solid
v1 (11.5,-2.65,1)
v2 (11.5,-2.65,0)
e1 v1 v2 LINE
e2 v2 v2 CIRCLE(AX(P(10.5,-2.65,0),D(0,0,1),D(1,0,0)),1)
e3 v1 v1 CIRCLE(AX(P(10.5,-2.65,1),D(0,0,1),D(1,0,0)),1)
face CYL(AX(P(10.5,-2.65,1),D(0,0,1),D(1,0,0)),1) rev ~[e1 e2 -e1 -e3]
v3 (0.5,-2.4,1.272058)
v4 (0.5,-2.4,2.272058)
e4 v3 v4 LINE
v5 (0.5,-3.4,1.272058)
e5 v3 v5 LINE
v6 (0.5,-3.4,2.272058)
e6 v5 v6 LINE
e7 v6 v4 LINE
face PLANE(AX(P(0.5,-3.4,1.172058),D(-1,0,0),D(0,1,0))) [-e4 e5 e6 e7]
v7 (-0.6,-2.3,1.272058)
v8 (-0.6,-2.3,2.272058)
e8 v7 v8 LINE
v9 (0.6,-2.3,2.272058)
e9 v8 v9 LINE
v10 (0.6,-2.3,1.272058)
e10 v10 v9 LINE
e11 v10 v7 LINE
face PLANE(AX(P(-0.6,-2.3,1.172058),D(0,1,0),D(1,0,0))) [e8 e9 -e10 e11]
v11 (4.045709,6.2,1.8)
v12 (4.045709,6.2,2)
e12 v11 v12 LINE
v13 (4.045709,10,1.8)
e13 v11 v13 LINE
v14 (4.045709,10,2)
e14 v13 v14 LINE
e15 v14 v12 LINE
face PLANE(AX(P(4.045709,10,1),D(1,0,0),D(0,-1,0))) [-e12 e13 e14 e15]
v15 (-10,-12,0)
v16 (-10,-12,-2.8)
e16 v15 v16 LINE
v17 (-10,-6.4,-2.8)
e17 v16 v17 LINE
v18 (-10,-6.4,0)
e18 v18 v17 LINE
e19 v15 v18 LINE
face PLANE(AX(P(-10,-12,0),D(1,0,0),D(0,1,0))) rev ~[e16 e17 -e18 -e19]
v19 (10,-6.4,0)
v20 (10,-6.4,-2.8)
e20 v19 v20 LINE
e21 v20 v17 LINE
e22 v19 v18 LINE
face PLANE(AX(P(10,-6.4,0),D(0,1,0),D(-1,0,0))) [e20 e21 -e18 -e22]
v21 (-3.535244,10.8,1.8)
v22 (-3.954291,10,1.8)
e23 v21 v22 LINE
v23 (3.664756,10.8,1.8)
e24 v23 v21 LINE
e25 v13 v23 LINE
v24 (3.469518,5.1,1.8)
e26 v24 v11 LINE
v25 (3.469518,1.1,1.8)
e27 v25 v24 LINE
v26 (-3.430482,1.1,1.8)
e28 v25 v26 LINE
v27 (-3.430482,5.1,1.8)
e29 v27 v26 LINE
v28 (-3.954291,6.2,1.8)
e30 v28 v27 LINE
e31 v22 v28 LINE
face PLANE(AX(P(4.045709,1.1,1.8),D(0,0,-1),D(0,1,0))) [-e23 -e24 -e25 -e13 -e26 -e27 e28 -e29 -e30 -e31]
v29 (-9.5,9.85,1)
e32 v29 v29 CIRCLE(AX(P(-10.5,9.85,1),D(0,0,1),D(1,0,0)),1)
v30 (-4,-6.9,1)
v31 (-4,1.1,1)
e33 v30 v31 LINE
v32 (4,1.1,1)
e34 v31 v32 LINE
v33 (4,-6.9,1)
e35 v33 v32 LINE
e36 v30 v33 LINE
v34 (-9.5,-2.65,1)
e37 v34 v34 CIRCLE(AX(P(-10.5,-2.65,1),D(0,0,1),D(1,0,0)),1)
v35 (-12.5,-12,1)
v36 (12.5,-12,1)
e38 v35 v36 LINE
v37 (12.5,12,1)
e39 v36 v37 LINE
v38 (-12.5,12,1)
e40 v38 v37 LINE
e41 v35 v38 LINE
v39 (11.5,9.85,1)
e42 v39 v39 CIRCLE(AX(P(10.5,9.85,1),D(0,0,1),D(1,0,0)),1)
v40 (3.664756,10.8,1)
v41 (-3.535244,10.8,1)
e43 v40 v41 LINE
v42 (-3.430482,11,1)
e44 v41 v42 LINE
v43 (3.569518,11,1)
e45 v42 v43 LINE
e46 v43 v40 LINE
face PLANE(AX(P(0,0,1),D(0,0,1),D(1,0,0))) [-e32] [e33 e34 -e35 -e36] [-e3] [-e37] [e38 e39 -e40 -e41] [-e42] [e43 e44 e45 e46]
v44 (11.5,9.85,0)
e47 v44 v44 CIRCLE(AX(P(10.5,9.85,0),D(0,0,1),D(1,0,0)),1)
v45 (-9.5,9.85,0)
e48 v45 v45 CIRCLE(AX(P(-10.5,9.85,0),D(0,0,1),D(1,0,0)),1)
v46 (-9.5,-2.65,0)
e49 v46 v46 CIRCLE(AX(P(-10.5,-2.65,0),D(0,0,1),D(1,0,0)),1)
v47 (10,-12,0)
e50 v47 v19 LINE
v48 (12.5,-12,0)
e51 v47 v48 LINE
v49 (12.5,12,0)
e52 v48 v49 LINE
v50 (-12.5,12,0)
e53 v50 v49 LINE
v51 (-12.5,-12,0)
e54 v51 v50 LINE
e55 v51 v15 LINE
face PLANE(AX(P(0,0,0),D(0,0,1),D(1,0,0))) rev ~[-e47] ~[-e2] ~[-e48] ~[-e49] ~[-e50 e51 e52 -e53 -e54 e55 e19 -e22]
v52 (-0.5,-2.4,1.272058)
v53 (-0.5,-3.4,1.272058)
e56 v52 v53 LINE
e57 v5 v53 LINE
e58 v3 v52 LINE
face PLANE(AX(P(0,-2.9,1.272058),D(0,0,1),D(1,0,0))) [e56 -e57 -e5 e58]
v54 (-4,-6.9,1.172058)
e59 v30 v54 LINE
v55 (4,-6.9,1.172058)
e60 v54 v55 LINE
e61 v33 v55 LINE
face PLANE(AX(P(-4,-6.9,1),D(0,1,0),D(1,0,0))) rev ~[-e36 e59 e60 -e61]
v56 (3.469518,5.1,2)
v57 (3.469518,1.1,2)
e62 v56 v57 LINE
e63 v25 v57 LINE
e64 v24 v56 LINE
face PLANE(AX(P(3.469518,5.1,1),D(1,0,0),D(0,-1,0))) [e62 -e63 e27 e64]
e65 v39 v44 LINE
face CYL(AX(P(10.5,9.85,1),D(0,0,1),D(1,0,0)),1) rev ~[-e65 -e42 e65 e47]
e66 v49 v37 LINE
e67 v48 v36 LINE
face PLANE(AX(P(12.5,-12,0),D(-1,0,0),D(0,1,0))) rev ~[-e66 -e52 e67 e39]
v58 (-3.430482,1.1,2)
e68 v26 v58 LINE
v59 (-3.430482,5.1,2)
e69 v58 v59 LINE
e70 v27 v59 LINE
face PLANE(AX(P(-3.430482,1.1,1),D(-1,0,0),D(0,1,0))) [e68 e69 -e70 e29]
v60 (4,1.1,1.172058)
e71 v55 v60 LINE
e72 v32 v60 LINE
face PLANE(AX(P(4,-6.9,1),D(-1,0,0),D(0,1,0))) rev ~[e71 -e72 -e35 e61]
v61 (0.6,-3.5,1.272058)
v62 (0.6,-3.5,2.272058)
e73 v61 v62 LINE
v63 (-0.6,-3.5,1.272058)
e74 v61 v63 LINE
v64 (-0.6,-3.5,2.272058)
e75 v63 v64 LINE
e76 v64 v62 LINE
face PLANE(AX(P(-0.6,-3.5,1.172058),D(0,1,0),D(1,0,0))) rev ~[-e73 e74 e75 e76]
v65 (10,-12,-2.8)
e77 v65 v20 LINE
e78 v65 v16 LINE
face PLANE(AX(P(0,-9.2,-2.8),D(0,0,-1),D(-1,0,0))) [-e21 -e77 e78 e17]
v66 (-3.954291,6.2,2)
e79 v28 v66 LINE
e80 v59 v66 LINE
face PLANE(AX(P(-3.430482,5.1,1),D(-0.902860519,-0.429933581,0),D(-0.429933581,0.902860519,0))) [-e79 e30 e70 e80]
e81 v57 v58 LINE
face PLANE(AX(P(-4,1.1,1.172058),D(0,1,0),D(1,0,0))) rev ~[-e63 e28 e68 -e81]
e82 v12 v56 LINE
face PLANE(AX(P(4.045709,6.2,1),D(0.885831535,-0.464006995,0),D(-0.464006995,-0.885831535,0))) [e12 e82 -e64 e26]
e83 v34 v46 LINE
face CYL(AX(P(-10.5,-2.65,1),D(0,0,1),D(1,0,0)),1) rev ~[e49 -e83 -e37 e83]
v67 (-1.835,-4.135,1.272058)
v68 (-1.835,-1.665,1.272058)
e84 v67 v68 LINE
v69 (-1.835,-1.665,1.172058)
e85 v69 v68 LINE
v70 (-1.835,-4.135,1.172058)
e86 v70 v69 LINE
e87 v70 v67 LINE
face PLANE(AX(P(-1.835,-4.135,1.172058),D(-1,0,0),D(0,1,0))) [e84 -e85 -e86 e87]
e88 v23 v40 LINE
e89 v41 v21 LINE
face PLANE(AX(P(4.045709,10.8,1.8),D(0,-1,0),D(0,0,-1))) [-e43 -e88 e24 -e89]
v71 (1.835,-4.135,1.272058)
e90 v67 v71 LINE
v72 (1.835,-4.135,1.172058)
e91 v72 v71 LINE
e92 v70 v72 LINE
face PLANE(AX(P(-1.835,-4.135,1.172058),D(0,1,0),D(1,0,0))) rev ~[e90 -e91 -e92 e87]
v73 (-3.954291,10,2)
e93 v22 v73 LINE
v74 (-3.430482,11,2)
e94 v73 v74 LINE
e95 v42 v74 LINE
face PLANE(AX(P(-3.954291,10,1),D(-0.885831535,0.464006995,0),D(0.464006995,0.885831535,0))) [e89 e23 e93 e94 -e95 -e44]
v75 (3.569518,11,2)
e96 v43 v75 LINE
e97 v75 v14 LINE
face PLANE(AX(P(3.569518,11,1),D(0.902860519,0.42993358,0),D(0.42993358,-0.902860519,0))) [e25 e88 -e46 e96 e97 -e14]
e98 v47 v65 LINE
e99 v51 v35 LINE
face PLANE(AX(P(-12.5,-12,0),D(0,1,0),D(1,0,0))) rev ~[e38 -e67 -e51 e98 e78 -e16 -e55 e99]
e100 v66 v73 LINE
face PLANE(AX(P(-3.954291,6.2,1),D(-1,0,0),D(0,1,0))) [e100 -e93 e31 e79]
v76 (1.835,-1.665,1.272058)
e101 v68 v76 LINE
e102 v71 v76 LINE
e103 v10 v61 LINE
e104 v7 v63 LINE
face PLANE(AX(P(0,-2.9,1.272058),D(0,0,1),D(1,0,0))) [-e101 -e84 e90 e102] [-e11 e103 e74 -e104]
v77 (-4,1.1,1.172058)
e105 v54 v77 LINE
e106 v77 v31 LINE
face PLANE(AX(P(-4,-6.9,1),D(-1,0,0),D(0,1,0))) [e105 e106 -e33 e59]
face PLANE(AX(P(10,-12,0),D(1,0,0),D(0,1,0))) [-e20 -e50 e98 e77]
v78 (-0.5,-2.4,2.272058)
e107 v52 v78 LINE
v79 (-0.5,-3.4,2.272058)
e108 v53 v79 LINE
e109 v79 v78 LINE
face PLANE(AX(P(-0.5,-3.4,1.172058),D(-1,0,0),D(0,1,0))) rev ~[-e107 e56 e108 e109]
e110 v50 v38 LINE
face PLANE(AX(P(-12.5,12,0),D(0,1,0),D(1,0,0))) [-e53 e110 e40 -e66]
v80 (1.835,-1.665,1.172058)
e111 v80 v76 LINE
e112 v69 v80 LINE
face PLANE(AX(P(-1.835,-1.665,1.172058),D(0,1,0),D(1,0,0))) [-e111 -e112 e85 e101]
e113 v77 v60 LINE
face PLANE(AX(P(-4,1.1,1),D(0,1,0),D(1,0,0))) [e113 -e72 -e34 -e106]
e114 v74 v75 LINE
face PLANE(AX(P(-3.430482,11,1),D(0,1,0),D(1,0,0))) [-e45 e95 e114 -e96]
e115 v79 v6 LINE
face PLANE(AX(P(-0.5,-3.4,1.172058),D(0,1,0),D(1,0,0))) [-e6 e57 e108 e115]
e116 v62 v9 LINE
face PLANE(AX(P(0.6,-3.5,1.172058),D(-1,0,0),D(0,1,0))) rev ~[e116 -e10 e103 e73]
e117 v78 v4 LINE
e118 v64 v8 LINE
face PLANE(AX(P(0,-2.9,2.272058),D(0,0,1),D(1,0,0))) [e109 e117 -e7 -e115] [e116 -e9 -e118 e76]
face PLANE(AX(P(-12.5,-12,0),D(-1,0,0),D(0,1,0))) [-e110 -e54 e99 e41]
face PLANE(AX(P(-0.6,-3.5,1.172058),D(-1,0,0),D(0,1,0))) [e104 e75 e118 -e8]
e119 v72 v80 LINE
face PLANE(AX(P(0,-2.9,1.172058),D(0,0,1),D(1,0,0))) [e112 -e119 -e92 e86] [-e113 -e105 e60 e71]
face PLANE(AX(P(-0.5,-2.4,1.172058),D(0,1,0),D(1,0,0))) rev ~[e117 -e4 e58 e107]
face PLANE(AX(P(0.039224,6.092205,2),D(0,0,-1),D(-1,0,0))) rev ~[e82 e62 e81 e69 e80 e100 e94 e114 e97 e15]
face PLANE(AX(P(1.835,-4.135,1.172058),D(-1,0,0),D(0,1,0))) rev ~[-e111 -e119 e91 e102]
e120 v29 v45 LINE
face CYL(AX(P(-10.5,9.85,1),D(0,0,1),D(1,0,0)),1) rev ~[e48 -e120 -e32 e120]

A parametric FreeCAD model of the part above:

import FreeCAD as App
import Part
import Sketcher
Q = App.Units.Quantity


def add_polygon(sketch, points):
    """Adds a closed chain of lines whose ends are joined by coincident constraints."""
    first, n = sketch.GeometryCount, len(points)
    for a, b in zip(points, points[1:] + points[:1]):
        sketch.addGeometry(Part.LineSegment(App.Vector(*a, 0), App.Vector(*b, 0)), False)
    for i in range(n):
        sketch.addConstraint(Sketcher.Constraint("Coincident", first + i, 2, first + (i + 1) % n, 1))

doc = App.newDocument("Part")
body = doc.addObject("PartDesign::Body", "Body")

sketch1 = body.newObject("Sketcher::SketchObject", "Sketch")
sketch1.AttachmentSupport = (doc.getObject("XY_Plane"), [""])
sketch1.MapMode = "FlatFace"
add_polygon(sketch1, [(-12, 12), (-12, -12), (12, -12), (12, 12)])
sketch1.addConstraint(Sketcher.Constraint("Vertical", 0))
sketch1.addConstraint(Sketcher.Constraint("Horizontal", 1))
sketch1.addConstraint(Sketcher.Constraint("Vertical", 2))
sketch1.addConstraint(Sketcher.Constraint("Horizontal", 3))
sketch1.addConstraint(Sketcher.Constraint("Symmetric", 0, 2, 2, 2, -1, 1))
sketch1.addConstraint(Sketcher.Constraint("DistanceX", 1, 1, 1, 2, Q("25 mm")))
sketch1.addConstraint(Sketcher.Constraint("DistanceY", 0, 2, 0, 1, Q("24 mm")))
pad1 = body.newObject("PartDesign::Pad", "Pad")
pad1.Profile = sketch1
pad1.Length = 1

sketch2 = body.newObject("Sketcher::SketchObject", "Sketch001")
sketch2.AttachmentSupport = (doc.getObject("XY_Plane"), [""])
sketch2.MapMode = "FlatFace"
sketch2.AttachmentOffset = App.Placement(App.Vector(0, 0, 1), App.Rotation())
sketch2.addGeometry(Part.Circle(App.Vector(-10.5, 9.8, 0), App.Vector(0, 0, 1), 1), False)
sketch2.addGeometry(Part.Circle(App.Vector(10.5, 9.8, 0), App.Vector(0, 0, 1), 1), False)
sketch2.addGeometry(Part.Circle(App.Vector(10.5, -2.6, 0), App.Vector(0, 0, 1), 1), False)
sketch2.addGeometry(Part.Circle(App.Vector(-10.5, -2.6, 0), App.Vector(0, 0, 1), 1), False)
sketch2.addConstraint(Sketcher.Constraint("Equal", 0, 1))
sketch2.addConstraint(Sketcher.Constraint("Equal", 1, 2))
sketch2.addConstraint(Sketcher.Constraint("Equal", 2, 3))
sketch2.addConstraint(Sketcher.Constraint("Symmetric", 0, 3, 1, 3, -2))
sketch2.addConstraint(Sketcher.Constraint("Symmetric", 2, 3, 3, 3, -2))
sketch2.addConstraint(Sketcher.Constraint("Vertical", 1, 3, 2, 3))
sketch2.addConstraint(Sketcher.Constraint("Diameter", 0, Q("2 mm")))
sketch2.addConstraint(Sketcher.Constraint("DistanceX", 0, 3, 1, 3, Q("21 mm")))
sketch2.addConstraint(Sketcher.Constraint("DistanceY", 2, 3, 1, 3, Q("12.5 mm")))
sketch2.addConstraint(Sketcher.Constraint("DistanceY", -1, 1, 0, 3, Q("9.85 mm")))
pocket1 = body.newObject("PartDesign::Pocket", "Pocket")
pocket1.Profile = sketch2
pocket1.Length = 1

sketch3 = body.newObject("Sketcher::SketchObject", "Sketch002")
sketch3.AttachmentSupport = (doc.getObject("XY_Plane"), [""])
sketch3.MapMode = "FlatFace"
sketch3.AttachmentOffset = App.Placement(App.Vector(0, 0, 1), App.Rotation())
add_polygon(sketch3, [(-4, 1), (-4, -7), (4, -7), (4, 1)])
sketch3.addConstraint(Sketcher.Constraint("Vertical", 0))
sketch3.addConstraint(Sketcher.Constraint("Horizontal", 1))
sketch3.addConstraint(Sketcher.Constraint("Vertical", 2))
sketch3.addConstraint(Sketcher.Constraint("Horizontal", 3))
sketch3.addConstraint(Sketcher.Constraint("Equal", 3, 0))
sketch3.addConstraint(Sketcher.Constraint("DistanceX", 1, 1, 1, 2, Q("8 mm")))
sketch3.addConstraint(Sketcher.Constraint("DistanceX", 0, 2, -1, 1, Q("4 mm")))
sketch3.addConstraint(Sketcher.Constraint("DistanceY", 0, 2, -1, 1, Q("6.9 mm")))
pad2 = body.newObject("PartDesign::Pad", "Pad001")
pad2.Profile = sketch3
pad2.Length = 5.2

sketch4 = body.newObject("Sketcher::SketchObject", "Sketch003")
sketch4.AttachmentSupport = (doc.getObject("XY_Plane"), [""])
sketch4.MapMode = "FlatFace"
sketch4.AttachmentOffset = App.Placement(App.Vector(0, 0, 6.2), App.Rotation())
add_polygon(sketch4, [(-4, 1.1), (-4, -6.9), (4, -6.9), (4, 1.1)])
sketch4.addGeometry(Part.Circle(App.Vector(0, -2.9, 0), App.Vector(0, 0, 1), 3.8), False)
sketch4.addConstraint(Sketcher.Constraint("Vertical", 0))
sketch4.addConstraint(Sketcher.Constraint("Horizontal", 1))
sketch4.addConstraint(Sketcher.Constraint("Vertical", 2))
sketch4.addConstraint(Sketcher.Constraint("Horizontal", 3))
sketch4.addConstraint(Sketcher.Constraint("PointOnObject", 4, 3, -2))
sketch4.addConstraint(Sketcher.Constraint("Equal", 3, 0))
sketch4.addConstraint(Sketcher.Constraint("Diameter", 4, Q("7.5 mm")))
sketch4.addConstraint(Sketcher.Constraint("DistanceX", 1, 1, 1, 2, Q("8 mm")))
sketch4.addConstraint(Sketcher.Constraint("DistanceX", 0, 2, -1, 1, Q("4 mm")))
sketch4.addConstraint(Sketcher.Constraint("DistanceY", 0, 2, 4, 3, Q("4 mm")))
sketch4.addConstraint(Sketcher.Constraint("DistanceY", 4, 3, -1, 1, Q("2.9 mm")))
pocket2 = body.newObject("PartDesign::Pocket", "Pocket001")
pocket2.Profile = sketch4
pocket2.Length = 3.2

sketch5 = body.newObject("Sketcher::SketchObject", "Sketch004")
sketch5.AttachmentSupport = (doc.getObject("XY_Plane"), [""])
sketch5.MapMode = "FlatFace"
sketch5.AttachmentOffset = App.Placement(App.Vector(0, 0, 6.2), App.Rotation())
sketch5.addGeometry(Part.Circle(App.Vector(0, -2.9, 0), App.Vector(0, 0, 1), 3.8), False)
sketch5.addGeometry(Part.Circle(App.Vector(0, -2.9, 0), App.Vector(0, 0, 1), 3), False)
sketch5.addConstraint(Sketcher.Constraint("Coincident", 1, 3, 0, 3))
sketch5.addConstraint(Sketcher.Constraint("PointOnObject", 0, 3, -2))
sketch5.addConstraint(Sketcher.Constraint("Diameter", 1, Q("6 mm")))
sketch5.addConstraint(Sketcher.Constraint("Diameter", 0, Q("7.5 mm")))
sketch5.addConstraint(Sketcher.Constraint("DistanceY", 0, 3, -1, 1, Q("2.9 mm")))
pocket3 = body.newObject("PartDesign::Pocket", "Pocket002")
pocket3.Profile = sketch5
pocket3.Length = 1.2

sketch6 = body.newObject("Sketcher::SketchObject", "Sketch005")
sketch6.AttachmentSupport = (doc.getObject("XY_Plane"), [""])
sketch6.MapMode = "FlatFace"
sketch6.AttachmentOffset = App.Placement(App.Vector(0, 0, 1), App.Rotation())
add_polygon(sketch6, [(-3.4, 5.1), (-3.4, 1.1), (3.5, 1.1), (3.5, 5.1), (4, 6.2), (4, 10), (3.6, 11), (-3.4, 11), (-4, 10), (-4, 6.2)])
sketch6.addConstraint(Sketcher.Constraint("Vertical", 0))
sketch6.addConstraint(Sketcher.Constraint("Horizontal", 1))
sketch6.addConstraint(Sketcher.Constraint("Vertical", 2))
sketch6.addConstraint(Sketcher.Constraint("Vertical", 4))
sketch6.addConstraint(Sketcher.Constraint("Horizontal", 6))
sketch6.addConstraint(Sketcher.Constraint("Vertical", 8))
sketch6.addConstraint(Sketcher.Constraint("Parallel", 3, 7))
sketch6.addConstraint(Sketcher.Constraint("Parallel", 5, 9))
sketch6.addConstraint(Sketcher.Constraint("Horizontal", 4, 2, 7, 2))
sketch6.addConstraint(Sketcher.Constraint("Horizontal", 3, 2, 8, 2))
sketch6.addConstraint(Sketcher.Constraint("Horizontal", 2, 2, 9, 2))
sketch6.addConstraint(Sketcher.Constraint("Vertical", 0, 2, 6, 2))
sketch6.addConstraint(Sketcher.Constraint("DistanceX", 6, 2, 6, 1, Q("7 mm")))
sketch6.addConstraint(Sketcher.Constraint("DistanceY", 0, 2, 0, 1, Q("4 mm")))
sketch6.addConstraint(Sketcher.Constraint("DistanceX", 1, 1, 1, 2, Q("6.9 mm")))
sketch6.addConstraint(Sketcher.Constraint("DistanceY", 4, 1, 4, 2, Q("3.8 mm")))
sketch6.addConstraint(Sketcher.Constraint("DistanceY", -1, 1, 4, 2, Q("10 mm")))
sketch6.addConstraint(Sketcher.Constraint("DistanceY", -1, 1, 5, 2, Q("11 mm")))
sketch6.addConstraint(Sketcher.Constraint("DistanceX", 7, 2, 4, 2, Q("8 mm")))
sketch6.addConstraint(Sketcher.Constraint("DistanceX", 0, 2, -1, 1, Q("3.430482 mm")))
pad3 = body.newObject("PartDesign::Pad", "Pad002")
pad3.Profile = sketch6
pad3.Length = 1

sketch7 = body.newObject("Sketcher::SketchObject", "Sketch006")
sketch7.AttachmentSupport = (doc.getObject("YZ_Plane"), [""])
sketch7.MapMode = "FlatFace"
sketch7.AttachmentOffset = App.Placement(App.Vector(0, 0, 4.045709), App.Rotation())
add_polygon(sketch7, [(10.8, 1.8), (1.1, 1.8), (1.1, 1), (10.8, 1)])
sketch7.addConstraint(Sketcher.Constraint("Horizontal", 0))
sketch7.addConstraint(Sketcher.Constraint("Vertical", 1))
sketch7.addConstraint(Sketcher.Constraint("Horizontal", 2))
sketch7.addConstraint(Sketcher.Constraint("Vertical", 3))
sketch7.addConstraint(Sketcher.Constraint("DistanceX", 0, 2, 0, 1, Q("9.7 mm")))
sketch7.addConstraint(Sketcher.Constraint("DistanceY", 1, 2, 1, 1, Q("0.8 mm")))
sketch7.addConstraint(Sketcher.Constraint("DistanceY", -1, 1, 1, 2, Q("1 mm")))
sketch7.addConstraint(Sketcher.Constraint("DistanceX", -1, 1, 0, 2, Q("1.1 mm")))
pocket4 = body.newObject("PartDesign::Pocket", "Pocket003")
pocket4.Profile = sketch7
pocket4.Length = 9

sketch8 = body.newObject("Sketcher::SketchObject", "Sketch007")
sketch8.AttachmentSupport = (doc.getObject("XY_Plane"), [""])
sketch8.MapMode = "FlatFace"
add_polygon(sketch8, [(10, -6), (10, -12), (-10, -12), (-10, -6)])
sketch8.addConstraint(Sketcher.Constraint("Vertical", 0))
sketch8.addConstraint(Sketcher.Constraint("Horizontal", 1))
sketch8.addConstraint(Sketcher.Constraint("Vertical", 2))
sketch8.addConstraint(Sketcher.Constraint("Horizontal", 3))
sketch8.addConstraint(Sketcher.Constraint("DistanceX", 1, 2, 1, 1, Q("20 mm")))
sketch8.addConstraint(Sketcher.Constraint("DistanceY", 0, 2, 0, 1, Q("5.6 mm")))
sketch8.addConstraint(Sketcher.Constraint("DistanceX", -1, 1, 0, 2, Q("10 mm")))
sketch8.addConstraint(Sketcher.Constraint("DistanceY", 0, 2, -1, 1, Q("12 mm")))
pad4 = body.newObject("PartDesign::Pad", "Pad003")
pad4.Profile = sketch8
pad4.Length = 2.8
pad4.Reversed = True

sketch9 = body.newObject("Sketcher::SketchObject", "Sketch008")
sketch9.AttachmentSupport = (doc.getObject("XY_Plane"), [""])
sketch9.MapMode = "FlatFace"
sketch9.AttachmentOffset = App.Placement(App.Vector(0, 0, 3), App.Rotation())
add_polygon(sketch9, [(-4, 1), (-4, -7), (4, -7), (4, 1)])
sketch9.addConstraint(Sketcher.Constraint("Vertical", 0))
sketch9.addConstraint(Sketcher.Constraint("Horizontal", 1))
sketch9.addConstraint(Sketcher.Constraint("Vertical", 2))
sketch9.addConstraint(Sketcher.Constraint("Horizontal", 3))
sketch9.addConstraint(Sketcher.Constraint("Equal", 3, 0))
sketch9.addConstraint(Sketcher.Constraint("DistanceX", 1, 1, 1, 2, Q("8 mm")))
sketch9.addConstraint(Sketcher.Constraint("DistanceX", 0, 2, -1, 1, Q("4 mm")))
sketch9.addConstraint(Sketcher.Constraint("DistanceY", 0, 2, -1, 1, Q("6.9 mm")))
pocket5 = body.newObject("PartDesign::Pocket", "Pocket004")
pocket5.Profile = sketch9
pocket5.Type = "TwoLengths"
pocket5.Length = 10
pocket5.Length2 = 1.827942
pocket5.Reversed = True

sketch10 = body.newObject("Sketcher::SketchObject", "Sketch009")
sketch10.AttachmentSupport = (doc.getObject("XY_Plane"), [""])
sketch10.MapMode = "FlatFace"
sketch10.AttachmentOffset = App.Placement(App.Vector(0, 0, 1.172058), App.Rotation())
add_polygon(sketch10, [(-1.8, -1.7), (-1.8, -4.1), (1.8, -4.1), (1.8, -1.7)])
sketch10.addConstraint(Sketcher.Constraint("Vertical", 0))
sketch10.addConstraint(Sketcher.Constraint("Horizontal", 1))
sketch10.addConstraint(Sketcher.Constraint("Vertical", 2))
sketch10.addConstraint(Sketcher.Constraint("Horizontal", 3))
sketch10.addConstraint(Sketcher.Constraint("DistanceX", 1, 1, 1, 2, Q("3.67 mm")))
sketch10.addConstraint(Sketcher.Constraint("DistanceY", 0, 2, 0, 1, Q("2.47 mm")))
sketch10.addConstraint(Sketcher.Constraint("DistanceX", 0, 2, -1, 1, Q("1.835 mm")))
sketch10.addConstraint(Sketcher.Constraint("DistanceY", 0, 2, -1, 1, Q("4.135 mm")))
pad5 = body.newObject("PartDesign::Pad", "Pad004")
pad5.Profile = sketch10
pad5.Length = 0.1

sketch11 = body.newObject("Sketcher::SketchObject", "Sketch010")
sketch11.AttachmentSupport = (doc.getObject("XY_Plane"), [""])
sketch11.MapMode = "FlatFace"
sketch11.AttachmentOffset = App.Placement(App.Vector(0, 0, 1.172058), App.Rotation())
add_polygon(sketch11, [(-0.6, -2.3), (-0.6, -3.5), (0.6, -3.5), (0.6, -2.3)])
add_polygon(sketch11, [(0.5, -3.4), (-0.5, -3.4), (-0.5, -2.4), (0.5, -2.4)])
sketch11.addConstraint(Sketcher.Constraint("Vertical", 0))
sketch11.addConstraint(Sketcher.Constraint("Horizontal", 1))
sketch11.addConstraint(Sketcher.Constraint("Vertical", 2))
sketch11.addConstraint(Sketcher.Constraint("Horizontal", 3))
sketch11.addConstraint(Sketcher.Constraint("Horizontal", 4))
sketch11.addConstraint(Sketcher.Constraint("Vertical", 5))
sketch11.addConstraint(Sketcher.Constraint("Horizontal", 6))
sketch11.addConstraint(Sketcher.Constraint("Vertical", 7))
sketch11.addConstraint(Sketcher.Constraint("Equal", 3, 0))
sketch11.addConstraint(Sketcher.Constraint("Equal", 6, 5))
sketch11.addConstraint(Sketcher.Constraint("DistanceX", 4, 2, 4, 1, Q("1 mm")))
sketch11.addConstraint(Sketcher.Constraint("DistanceX", 1, 1, 1, 2, Q("1.2 mm")))
sketch11.addConstraint(Sketcher.Constraint("DistanceX", 0, 2, -1, 1, Q("0.6 mm")))
sketch11.addConstraint(Sketcher.Constraint("DistanceY", 0, 2, -1, 1, Q("3.5 mm")))
sketch11.addConstraint(Sketcher.Constraint("DistanceX", 4, 2, -1, 1, Q("0.5 mm")))
sketch11.addConstraint(Sketcher.Constraint("DistanceY", 4, 2, -1, 1, Q("3.4 mm")))
pad6 = body.newObject("PartDesign::Pad", "Pad005")
pad6.Profile = sketch11
pad6.Length = 1.1

doc.recompute()
